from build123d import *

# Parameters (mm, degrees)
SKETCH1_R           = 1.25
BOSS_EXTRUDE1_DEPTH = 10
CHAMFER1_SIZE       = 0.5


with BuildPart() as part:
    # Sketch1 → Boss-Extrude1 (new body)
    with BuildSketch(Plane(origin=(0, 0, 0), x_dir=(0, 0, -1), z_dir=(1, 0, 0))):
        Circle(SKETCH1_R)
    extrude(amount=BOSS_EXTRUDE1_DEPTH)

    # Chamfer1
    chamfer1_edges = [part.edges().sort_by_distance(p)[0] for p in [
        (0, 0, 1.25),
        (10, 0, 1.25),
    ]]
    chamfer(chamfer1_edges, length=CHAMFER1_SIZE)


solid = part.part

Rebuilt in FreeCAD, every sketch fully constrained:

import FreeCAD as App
import Part
import Sketcher
from FreeCAD import Vector


def edges_at(feature, points):
    """Names of the edges that pass closest to the given points."""
    edges = feature.Shape.Edges
    near = lambda p: min(range(len(edges)), key=lambda i: edges[i].distToShape(Part.Vertex(*p))[0])
    return sorted({f"Edge{near(p) + 1}" for p in points})

doc = App.newDocument("Part")
body = doc.addObject("PartDesign::Body", "Body")

# Sketch on YZ plane
sketch1 = body.newObject("Sketcher::SketchObject", "Sketch")
sketch1.AttachmentSupport = (doc.getObject("YZ_Plane"), [""])
sketch1.MapMode = "FlatFace"
sketch1.addGeometry(Part.Circle(Vector(0, 0, 0), Vector(0, 0, 1), 1.2), False)
sketch1.addConstraint(Sketcher.Constraint("Coincident", 0, 3, -1, 1))
sketch1.addConstraint(Sketcher.Constraint("Diameter", 0, 2.5))
pad1 = body.newObject("PartDesign::Pad", "Pad")
pad1.Profile = sketch1
pad1.Length = 10
doc.recompute()

chamfer = body.newObject("PartDesign::Chamfer", "Chamfer")
chamfer.Base = (pad1, edges_at(pad1, [(0, 0, 1.25), (10, 0, 1.25)]))
chamfer.Size = 0.5

doc.recompute()
